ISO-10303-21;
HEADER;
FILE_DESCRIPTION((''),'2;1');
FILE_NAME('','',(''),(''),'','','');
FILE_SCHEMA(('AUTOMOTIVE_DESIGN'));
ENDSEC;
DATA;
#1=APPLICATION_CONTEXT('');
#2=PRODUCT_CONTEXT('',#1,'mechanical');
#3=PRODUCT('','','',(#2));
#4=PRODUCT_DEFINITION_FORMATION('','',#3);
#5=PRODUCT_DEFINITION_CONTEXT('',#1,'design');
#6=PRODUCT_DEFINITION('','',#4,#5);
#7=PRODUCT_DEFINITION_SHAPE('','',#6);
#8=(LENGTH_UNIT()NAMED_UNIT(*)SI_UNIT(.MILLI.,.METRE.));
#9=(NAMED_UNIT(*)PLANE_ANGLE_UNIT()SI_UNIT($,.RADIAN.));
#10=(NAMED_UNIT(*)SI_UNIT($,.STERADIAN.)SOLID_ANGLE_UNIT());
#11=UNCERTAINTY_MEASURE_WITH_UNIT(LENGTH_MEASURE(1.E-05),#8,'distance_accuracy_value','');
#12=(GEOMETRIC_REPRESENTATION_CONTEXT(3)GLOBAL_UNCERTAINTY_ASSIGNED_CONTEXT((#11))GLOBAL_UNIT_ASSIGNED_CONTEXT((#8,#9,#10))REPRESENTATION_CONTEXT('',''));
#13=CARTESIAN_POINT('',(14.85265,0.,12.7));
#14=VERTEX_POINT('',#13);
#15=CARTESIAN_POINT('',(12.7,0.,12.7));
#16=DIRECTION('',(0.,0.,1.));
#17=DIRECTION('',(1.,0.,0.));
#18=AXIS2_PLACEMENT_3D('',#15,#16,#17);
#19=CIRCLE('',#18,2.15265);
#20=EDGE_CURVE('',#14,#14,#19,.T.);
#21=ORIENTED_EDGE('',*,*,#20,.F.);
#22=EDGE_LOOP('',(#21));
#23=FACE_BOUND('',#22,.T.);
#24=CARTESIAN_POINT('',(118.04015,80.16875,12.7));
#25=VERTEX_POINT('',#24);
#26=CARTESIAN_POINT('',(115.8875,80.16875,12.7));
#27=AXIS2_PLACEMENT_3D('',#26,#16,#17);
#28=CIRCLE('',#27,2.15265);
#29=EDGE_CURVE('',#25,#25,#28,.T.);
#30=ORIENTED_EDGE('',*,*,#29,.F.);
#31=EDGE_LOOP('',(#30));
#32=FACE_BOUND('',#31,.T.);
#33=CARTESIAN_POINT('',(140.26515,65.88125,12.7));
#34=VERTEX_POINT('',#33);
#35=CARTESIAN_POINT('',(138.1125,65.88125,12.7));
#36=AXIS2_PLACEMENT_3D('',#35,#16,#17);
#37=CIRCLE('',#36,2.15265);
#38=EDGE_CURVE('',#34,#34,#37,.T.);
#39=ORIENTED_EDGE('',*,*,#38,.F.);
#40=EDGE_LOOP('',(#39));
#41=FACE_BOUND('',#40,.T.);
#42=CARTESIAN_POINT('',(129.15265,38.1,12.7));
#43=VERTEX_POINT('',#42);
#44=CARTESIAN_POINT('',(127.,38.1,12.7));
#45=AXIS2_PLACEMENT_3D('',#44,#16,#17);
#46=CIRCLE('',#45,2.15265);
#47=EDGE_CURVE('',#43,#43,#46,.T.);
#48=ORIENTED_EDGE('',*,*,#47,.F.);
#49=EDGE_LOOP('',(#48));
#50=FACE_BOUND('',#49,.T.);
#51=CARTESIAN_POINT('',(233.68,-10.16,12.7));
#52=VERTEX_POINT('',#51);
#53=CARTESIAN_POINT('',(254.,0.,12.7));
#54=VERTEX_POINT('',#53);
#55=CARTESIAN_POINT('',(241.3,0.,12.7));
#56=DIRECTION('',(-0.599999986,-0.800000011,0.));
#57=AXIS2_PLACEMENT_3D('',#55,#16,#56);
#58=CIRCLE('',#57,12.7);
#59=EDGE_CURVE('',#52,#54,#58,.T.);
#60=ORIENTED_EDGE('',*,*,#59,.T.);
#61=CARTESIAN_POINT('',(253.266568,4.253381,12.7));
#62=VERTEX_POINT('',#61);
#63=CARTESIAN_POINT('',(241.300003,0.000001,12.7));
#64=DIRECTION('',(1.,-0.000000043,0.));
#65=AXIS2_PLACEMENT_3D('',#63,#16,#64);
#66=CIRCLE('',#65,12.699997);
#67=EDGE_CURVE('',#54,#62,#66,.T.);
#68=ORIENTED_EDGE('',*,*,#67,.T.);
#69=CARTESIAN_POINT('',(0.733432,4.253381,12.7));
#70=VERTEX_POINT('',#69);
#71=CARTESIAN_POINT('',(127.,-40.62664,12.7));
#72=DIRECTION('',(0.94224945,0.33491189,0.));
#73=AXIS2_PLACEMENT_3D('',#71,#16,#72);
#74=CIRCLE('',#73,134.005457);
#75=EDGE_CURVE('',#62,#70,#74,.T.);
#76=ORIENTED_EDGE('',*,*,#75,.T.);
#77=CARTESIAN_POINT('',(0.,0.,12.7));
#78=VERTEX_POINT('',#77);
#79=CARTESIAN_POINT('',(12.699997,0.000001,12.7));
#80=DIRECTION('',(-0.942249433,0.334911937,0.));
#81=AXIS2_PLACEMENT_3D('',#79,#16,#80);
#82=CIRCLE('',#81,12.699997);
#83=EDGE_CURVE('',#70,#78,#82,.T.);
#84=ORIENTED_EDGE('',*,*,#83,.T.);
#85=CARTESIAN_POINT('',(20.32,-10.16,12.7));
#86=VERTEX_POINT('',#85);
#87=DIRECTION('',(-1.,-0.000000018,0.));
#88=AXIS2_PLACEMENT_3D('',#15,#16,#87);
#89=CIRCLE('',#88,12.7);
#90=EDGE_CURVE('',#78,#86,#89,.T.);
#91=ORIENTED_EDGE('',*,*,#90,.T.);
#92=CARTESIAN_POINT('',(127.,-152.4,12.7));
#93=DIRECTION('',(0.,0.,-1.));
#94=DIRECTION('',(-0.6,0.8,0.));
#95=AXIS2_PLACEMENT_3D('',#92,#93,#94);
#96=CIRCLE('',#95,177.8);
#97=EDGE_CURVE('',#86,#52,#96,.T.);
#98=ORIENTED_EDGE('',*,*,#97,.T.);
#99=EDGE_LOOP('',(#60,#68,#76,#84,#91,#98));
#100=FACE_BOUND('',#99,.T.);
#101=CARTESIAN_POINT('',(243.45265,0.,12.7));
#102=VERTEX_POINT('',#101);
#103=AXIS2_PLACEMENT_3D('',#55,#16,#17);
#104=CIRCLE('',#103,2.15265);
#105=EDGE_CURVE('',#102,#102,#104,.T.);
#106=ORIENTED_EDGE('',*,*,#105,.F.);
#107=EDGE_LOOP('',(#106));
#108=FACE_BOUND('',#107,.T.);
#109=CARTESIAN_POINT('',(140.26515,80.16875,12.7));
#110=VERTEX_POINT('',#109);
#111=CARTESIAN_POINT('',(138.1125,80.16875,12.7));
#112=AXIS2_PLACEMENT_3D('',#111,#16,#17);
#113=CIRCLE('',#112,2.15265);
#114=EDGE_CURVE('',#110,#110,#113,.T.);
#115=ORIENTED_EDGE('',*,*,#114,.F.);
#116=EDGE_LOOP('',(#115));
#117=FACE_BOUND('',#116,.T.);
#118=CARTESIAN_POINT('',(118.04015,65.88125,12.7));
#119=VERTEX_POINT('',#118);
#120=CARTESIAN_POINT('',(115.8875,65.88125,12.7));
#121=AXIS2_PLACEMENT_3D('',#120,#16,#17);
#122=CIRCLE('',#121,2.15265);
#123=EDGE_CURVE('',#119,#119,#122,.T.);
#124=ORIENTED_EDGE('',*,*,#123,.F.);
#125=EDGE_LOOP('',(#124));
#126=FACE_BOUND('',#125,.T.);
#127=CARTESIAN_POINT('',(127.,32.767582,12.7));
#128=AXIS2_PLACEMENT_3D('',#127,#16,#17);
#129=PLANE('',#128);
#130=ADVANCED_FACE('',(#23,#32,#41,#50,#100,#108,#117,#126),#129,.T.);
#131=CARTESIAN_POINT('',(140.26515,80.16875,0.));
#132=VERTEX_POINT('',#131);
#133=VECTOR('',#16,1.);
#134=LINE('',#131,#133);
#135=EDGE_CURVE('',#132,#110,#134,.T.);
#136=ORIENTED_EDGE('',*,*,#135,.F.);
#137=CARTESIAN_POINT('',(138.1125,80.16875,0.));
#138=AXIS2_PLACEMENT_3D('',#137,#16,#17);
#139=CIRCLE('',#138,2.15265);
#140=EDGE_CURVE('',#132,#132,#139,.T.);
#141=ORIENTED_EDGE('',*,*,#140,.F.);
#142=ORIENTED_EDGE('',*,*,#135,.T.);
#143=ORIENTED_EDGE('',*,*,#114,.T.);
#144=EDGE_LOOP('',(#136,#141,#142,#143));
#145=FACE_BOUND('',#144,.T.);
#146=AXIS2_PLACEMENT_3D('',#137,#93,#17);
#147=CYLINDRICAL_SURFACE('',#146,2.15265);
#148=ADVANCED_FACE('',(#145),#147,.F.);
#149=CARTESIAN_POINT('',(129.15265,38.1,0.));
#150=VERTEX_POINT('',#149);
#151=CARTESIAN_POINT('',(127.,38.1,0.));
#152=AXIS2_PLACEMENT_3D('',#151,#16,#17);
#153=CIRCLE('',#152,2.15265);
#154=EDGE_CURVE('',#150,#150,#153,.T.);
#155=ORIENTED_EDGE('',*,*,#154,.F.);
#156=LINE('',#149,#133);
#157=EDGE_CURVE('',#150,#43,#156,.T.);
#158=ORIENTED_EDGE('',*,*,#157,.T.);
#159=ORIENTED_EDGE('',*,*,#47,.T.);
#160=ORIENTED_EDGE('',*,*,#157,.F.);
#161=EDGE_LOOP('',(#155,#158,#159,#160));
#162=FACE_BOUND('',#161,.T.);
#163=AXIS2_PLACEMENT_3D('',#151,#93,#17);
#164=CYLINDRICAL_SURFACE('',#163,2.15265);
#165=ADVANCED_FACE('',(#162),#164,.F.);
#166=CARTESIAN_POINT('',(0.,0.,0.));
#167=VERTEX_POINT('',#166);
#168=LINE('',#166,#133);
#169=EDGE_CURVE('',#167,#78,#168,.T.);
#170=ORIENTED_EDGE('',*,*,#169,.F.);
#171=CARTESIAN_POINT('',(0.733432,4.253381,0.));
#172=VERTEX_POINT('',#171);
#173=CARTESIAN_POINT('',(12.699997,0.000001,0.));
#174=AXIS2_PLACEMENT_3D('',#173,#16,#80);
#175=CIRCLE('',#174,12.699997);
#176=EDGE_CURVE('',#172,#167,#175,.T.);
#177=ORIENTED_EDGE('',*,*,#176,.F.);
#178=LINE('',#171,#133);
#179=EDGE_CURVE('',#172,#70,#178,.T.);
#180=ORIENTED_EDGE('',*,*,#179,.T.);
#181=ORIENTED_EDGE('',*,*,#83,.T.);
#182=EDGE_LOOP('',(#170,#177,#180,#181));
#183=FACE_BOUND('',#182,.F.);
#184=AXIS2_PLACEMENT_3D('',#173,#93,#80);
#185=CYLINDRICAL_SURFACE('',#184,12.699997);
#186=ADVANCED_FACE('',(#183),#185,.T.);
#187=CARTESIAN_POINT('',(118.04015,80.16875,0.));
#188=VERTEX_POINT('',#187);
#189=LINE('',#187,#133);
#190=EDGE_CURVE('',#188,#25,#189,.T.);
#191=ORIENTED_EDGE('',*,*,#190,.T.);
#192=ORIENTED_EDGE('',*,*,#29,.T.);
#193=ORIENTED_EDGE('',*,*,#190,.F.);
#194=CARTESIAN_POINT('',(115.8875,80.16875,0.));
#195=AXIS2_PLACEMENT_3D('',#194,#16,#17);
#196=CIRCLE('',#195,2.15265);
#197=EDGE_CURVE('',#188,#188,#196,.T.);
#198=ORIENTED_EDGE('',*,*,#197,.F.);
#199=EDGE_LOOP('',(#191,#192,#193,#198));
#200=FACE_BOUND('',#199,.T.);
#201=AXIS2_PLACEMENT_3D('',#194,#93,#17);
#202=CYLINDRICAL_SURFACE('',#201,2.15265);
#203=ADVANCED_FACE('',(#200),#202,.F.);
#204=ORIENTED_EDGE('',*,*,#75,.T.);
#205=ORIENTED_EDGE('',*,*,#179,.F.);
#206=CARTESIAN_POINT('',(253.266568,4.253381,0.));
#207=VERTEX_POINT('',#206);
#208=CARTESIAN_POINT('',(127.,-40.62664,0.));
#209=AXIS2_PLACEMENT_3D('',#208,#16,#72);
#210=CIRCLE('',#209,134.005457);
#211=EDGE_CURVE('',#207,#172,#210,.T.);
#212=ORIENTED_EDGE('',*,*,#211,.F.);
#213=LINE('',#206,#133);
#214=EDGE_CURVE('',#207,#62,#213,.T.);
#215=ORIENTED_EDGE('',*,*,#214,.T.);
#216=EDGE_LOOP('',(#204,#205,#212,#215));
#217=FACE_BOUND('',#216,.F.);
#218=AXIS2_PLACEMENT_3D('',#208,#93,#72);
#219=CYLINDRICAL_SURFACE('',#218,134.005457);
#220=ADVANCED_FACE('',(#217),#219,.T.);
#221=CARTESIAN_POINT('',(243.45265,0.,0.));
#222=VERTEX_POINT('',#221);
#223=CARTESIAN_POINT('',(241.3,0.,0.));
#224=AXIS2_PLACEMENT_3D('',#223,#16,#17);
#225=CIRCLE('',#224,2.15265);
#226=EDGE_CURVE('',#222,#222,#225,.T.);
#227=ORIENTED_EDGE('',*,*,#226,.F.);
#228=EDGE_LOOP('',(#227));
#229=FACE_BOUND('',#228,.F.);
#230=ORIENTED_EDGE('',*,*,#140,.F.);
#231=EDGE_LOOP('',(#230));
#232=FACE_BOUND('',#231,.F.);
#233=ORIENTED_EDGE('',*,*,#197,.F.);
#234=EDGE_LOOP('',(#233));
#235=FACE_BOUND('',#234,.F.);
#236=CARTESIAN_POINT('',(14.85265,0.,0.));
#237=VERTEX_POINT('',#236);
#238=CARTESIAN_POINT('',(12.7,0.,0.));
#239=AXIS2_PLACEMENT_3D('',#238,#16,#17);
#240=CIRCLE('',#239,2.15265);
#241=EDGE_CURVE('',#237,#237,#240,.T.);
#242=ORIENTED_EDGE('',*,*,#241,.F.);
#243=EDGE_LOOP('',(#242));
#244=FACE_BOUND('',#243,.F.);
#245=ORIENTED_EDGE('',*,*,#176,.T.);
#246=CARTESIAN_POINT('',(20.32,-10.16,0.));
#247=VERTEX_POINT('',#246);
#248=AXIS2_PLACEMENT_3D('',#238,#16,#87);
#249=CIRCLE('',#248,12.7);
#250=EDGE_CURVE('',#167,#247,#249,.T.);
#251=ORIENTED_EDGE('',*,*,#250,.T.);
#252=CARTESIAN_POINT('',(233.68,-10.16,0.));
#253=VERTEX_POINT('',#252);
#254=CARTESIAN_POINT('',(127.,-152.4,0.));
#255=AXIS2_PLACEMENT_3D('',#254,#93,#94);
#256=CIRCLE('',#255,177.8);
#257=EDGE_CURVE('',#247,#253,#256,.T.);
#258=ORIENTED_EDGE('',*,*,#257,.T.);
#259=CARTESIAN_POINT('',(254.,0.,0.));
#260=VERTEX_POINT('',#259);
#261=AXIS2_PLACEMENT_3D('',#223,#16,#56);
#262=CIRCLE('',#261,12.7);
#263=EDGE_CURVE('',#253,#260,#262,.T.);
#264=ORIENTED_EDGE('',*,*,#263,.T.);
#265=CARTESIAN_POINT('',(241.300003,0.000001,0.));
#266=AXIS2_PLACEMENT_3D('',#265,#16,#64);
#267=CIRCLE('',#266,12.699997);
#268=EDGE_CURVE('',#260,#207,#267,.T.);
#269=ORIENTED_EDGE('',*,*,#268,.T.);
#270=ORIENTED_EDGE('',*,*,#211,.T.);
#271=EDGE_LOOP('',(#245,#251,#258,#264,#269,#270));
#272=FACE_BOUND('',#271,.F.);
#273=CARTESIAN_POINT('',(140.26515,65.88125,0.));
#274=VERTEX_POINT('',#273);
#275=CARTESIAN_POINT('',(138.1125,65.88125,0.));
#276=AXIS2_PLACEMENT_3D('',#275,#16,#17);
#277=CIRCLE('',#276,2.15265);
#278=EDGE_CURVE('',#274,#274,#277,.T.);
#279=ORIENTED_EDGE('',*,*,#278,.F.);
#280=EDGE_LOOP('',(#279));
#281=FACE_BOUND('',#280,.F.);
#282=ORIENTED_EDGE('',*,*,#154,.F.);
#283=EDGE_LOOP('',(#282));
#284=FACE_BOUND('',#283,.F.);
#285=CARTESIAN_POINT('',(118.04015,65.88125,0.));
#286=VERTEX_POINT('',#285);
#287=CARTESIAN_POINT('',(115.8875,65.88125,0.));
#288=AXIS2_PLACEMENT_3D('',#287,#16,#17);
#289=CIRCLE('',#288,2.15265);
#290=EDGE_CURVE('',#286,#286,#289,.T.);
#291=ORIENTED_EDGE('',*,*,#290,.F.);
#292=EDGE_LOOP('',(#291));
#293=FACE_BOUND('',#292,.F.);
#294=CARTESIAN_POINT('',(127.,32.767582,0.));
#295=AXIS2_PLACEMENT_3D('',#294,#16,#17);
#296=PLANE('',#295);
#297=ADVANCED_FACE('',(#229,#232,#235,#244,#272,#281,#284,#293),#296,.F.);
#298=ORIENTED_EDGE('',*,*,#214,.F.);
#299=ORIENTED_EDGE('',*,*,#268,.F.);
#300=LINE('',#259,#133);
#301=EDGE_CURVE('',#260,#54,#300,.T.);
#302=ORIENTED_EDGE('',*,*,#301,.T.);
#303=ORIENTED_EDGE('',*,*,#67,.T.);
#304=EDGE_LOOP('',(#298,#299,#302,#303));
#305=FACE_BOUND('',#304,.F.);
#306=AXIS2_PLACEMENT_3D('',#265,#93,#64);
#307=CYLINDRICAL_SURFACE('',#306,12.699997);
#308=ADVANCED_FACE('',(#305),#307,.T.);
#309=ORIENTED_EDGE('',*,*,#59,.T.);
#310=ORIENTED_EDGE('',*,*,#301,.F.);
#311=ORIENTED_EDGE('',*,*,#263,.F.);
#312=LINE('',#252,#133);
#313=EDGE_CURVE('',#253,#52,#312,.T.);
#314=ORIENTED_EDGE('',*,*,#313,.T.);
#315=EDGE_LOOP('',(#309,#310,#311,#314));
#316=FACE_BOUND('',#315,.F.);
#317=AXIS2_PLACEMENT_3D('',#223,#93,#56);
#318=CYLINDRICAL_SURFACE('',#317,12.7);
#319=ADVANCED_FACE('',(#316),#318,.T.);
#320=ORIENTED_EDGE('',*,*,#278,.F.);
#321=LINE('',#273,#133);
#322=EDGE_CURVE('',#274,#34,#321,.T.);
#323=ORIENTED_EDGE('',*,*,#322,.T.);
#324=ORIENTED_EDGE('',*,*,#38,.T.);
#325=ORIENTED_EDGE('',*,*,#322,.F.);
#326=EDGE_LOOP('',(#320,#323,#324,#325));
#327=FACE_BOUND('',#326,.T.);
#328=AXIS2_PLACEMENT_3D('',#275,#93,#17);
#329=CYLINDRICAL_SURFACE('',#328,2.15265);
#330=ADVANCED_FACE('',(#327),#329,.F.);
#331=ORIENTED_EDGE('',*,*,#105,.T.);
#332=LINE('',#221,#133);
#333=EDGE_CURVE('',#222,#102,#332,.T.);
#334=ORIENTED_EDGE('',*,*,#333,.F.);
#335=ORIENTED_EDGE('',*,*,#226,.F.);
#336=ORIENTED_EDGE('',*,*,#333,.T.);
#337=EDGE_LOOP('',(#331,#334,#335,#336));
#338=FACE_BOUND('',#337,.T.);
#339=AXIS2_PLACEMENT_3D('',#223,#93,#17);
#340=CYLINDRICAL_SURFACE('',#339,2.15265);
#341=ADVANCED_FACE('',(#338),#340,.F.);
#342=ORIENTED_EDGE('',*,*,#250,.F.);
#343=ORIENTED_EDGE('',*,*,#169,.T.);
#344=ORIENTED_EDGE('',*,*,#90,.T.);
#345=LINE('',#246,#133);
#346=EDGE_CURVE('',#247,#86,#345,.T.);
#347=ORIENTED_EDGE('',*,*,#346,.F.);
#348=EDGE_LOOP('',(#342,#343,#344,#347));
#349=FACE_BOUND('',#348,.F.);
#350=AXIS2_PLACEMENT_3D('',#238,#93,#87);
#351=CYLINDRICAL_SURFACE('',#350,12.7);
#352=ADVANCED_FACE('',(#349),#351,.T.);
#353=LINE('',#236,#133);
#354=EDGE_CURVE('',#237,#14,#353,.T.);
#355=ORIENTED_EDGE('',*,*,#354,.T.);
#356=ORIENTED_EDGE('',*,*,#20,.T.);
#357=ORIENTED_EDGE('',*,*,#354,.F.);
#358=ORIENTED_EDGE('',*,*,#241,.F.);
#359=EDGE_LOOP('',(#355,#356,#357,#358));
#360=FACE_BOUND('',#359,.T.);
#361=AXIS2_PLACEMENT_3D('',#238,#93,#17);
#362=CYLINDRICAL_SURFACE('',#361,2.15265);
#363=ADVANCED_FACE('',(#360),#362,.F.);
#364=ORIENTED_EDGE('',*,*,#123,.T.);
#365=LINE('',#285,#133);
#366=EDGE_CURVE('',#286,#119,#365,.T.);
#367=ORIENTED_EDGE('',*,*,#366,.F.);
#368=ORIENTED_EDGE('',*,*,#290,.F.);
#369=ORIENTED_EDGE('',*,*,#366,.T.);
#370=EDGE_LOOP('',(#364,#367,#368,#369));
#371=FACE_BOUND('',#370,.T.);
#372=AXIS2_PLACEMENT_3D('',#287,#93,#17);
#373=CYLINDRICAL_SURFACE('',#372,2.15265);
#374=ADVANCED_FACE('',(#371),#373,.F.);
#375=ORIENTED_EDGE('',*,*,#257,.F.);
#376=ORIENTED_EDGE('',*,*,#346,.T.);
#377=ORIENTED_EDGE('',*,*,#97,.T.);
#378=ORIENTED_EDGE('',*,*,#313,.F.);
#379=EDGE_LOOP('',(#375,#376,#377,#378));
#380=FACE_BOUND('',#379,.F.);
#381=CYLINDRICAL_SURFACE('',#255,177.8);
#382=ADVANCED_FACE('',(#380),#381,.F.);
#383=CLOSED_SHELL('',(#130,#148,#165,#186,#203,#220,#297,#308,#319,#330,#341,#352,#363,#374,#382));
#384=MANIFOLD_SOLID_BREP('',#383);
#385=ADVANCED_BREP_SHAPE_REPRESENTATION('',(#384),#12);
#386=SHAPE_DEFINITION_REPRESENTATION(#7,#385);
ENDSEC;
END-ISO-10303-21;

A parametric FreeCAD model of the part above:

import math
import FreeCAD as App
import Part
import Sketcher
Q = App.Units.Quantity

doc = App.newDocument("Part")
body = doc.addObject("PartDesign::Body", "Body")

# Sketch on XY plane
sketch1 = body.newObject("Sketcher::SketchObject", "Sketch")
sketch1.AttachmentSupport = (doc.getObject("XY_Plane"), [""])
sketch1.MapMode = "FlatFace"
sketch1.addGeometry([
    Part.ArcOfCircle(Part.Circle(App.Vector(127, -152.4, 0), App.Vector(0, 0, 1), 177.8), math.radians(53), math.radians(127)),  # 0
    Part.ArcOfCircle(Part.Circle(App.Vector(241.3, 0, 0), App.Vector(0, 0, 1), 12.7), math.radians(-127), math.radians(0)),  # 1
    Part.ArcOfCircle(Part.Circle(App.Vector(241.3, 0, 0), App.Vector(0, 0, 1), 12.7), math.radians(0), math.radians(19.57)),  # 2
    Part.ArcOfCircle(Part.Circle(App.Vector(127, -40.6, 0), App.Vector(0, 0, 1), 134), math.radians(20), math.radians(160)),  # 3
    Part.ArcOfCircle(Part.Circle(App.Vector(12.7, 0, 0), App.Vector(0, 0, 1), 12.7), math.radians(160.43), math.radians(180)),  # 4
    Part.ArcOfCircle(Part.Circle(App.Vector(12.7, 0, 0), App.Vector(0, 0, 1), 12.7), math.radians(-180), math.radians(-53)),  # 5
    Part.Circle(App.Vector(12.7, 0, 0), App.Vector(0, 0, 1), 2.2),  # 6
    Part.Circle(App.Vector(127, 38.1, 0), App.Vector(0, 0, 1), 2.2),  # 7
    Part.Circle(App.Vector(241.3, 0, 0), App.Vector(0, 0, 1), 2.2),  # 8
    Part.Circle(App.Vector(115.9, 65.9, 0), App.Vector(0, 0, 1), 2.2),  # 9
    Part.Circle(App.Vector(115.9, 80.2, 0), App.Vector(0, 0, 1), 2.2),  # 10
    Part.Circle(App.Vector(138.1, 65.9, 0), App.Vector(0, 0, 1), 2.2),  # 11
    Part.Circle(App.Vector(138.1, 80.2, 0), App.Vector(0, 0, 1), 2.2),  # 12
], False)
sketch1.addConstraint([
    Sketcher.Constraint("Tangent", 0, 1, 1, 1),
    Sketcher.Constraint("Tangent", 1, 2, 2, 1),
    Sketcher.Constraint("Tangent", 2, 2, 3, 1),
    Sketcher.Constraint("Tangent", 3, 2, 4, 1),
    Sketcher.Constraint("Tangent", 4, 2, 5, 1),
    Sketcher.Constraint("Tangent", 5, 2, 0, 2),
    Sketcher.Constraint("Coincident", 4, 2, -1, 1),
    Sketcher.Constraint("Coincident", 6, 3, 4, 3),
    Sketcher.Constraint("Coincident", 8, 3, 1, 3),
    Sketcher.Constraint("Equal", 2, 4),
    Sketcher.Constraint("Equal", 1, 5),
    Sketcher.Constraint("Equal", 6, 7),
    Sketcher.Constraint("Equal", 7, 8),
    Sketcher.Constraint("Equal", 8, 9),
    Sketcher.Constraint("Equal", 9, 10),
    Sketcher.Constraint("Equal", 10, 11),
    Sketcher.Constraint("Equal", 11, 12),
    Sketcher.Constraint("PointOnObject", 1, 3, -1),
    Sketcher.Constraint("PointOnObject", 4, 3, -1),
    Sketcher.Constraint("PointOnObject", 1, 2, -1),
    Sketcher.Constraint("Horizontal", 9, 3, 11, 3),
    Sketcher.Constraint("Horizontal", 10, 3, 12, 3),
    Sketcher.Constraint("Vertical", 3, 3, 7, 3),
    Sketcher.Constraint("Vertical", 9, 3, 10, 3),
    Sketcher.Constraint("Vertical", 11, 3, 12, 3),
    Sketcher.Constraint("Radius", 0, Q("7 in")),
    Sketcher.Constraint("Radius", 1, Q("0.5 in")),
    Sketcher.Constraint("Radius", 2, Q("0.4999999 in")),
    Sketcher.Constraint("DistanceX", -1, 1, 0, 3, Q("5 in")),
    Sketcher.Constraint("Diameter", 6, Q("0.1695 in")),
    Sketcher.Constraint("DistanceY", -1, 1, 7, 3, Q("1.5 in")),
    Sketcher.Constraint("DistanceX", -1, 1, 9, 3, Q("4.5625 in")),
    Sketcher.Constraint("DistanceY", -1, 1, 9, 3, Q("2.59375 in")),
    Sketcher.Constraint("DistanceY", -1, 1, 10, 3, Q("3.15625 in")),
    Sketcher.Constraint("DistanceX", -1, 1, 11, 3, Q("5.4375 in")),
    Sketcher.Constraint("Radius", 3, 134.005457),
])
pad1 = body.newObject("PartDesign::Pad", "Pad")
pad1.Profile = sketch1
pad1.Length = Q("0.5 in")

doc.recompute()
